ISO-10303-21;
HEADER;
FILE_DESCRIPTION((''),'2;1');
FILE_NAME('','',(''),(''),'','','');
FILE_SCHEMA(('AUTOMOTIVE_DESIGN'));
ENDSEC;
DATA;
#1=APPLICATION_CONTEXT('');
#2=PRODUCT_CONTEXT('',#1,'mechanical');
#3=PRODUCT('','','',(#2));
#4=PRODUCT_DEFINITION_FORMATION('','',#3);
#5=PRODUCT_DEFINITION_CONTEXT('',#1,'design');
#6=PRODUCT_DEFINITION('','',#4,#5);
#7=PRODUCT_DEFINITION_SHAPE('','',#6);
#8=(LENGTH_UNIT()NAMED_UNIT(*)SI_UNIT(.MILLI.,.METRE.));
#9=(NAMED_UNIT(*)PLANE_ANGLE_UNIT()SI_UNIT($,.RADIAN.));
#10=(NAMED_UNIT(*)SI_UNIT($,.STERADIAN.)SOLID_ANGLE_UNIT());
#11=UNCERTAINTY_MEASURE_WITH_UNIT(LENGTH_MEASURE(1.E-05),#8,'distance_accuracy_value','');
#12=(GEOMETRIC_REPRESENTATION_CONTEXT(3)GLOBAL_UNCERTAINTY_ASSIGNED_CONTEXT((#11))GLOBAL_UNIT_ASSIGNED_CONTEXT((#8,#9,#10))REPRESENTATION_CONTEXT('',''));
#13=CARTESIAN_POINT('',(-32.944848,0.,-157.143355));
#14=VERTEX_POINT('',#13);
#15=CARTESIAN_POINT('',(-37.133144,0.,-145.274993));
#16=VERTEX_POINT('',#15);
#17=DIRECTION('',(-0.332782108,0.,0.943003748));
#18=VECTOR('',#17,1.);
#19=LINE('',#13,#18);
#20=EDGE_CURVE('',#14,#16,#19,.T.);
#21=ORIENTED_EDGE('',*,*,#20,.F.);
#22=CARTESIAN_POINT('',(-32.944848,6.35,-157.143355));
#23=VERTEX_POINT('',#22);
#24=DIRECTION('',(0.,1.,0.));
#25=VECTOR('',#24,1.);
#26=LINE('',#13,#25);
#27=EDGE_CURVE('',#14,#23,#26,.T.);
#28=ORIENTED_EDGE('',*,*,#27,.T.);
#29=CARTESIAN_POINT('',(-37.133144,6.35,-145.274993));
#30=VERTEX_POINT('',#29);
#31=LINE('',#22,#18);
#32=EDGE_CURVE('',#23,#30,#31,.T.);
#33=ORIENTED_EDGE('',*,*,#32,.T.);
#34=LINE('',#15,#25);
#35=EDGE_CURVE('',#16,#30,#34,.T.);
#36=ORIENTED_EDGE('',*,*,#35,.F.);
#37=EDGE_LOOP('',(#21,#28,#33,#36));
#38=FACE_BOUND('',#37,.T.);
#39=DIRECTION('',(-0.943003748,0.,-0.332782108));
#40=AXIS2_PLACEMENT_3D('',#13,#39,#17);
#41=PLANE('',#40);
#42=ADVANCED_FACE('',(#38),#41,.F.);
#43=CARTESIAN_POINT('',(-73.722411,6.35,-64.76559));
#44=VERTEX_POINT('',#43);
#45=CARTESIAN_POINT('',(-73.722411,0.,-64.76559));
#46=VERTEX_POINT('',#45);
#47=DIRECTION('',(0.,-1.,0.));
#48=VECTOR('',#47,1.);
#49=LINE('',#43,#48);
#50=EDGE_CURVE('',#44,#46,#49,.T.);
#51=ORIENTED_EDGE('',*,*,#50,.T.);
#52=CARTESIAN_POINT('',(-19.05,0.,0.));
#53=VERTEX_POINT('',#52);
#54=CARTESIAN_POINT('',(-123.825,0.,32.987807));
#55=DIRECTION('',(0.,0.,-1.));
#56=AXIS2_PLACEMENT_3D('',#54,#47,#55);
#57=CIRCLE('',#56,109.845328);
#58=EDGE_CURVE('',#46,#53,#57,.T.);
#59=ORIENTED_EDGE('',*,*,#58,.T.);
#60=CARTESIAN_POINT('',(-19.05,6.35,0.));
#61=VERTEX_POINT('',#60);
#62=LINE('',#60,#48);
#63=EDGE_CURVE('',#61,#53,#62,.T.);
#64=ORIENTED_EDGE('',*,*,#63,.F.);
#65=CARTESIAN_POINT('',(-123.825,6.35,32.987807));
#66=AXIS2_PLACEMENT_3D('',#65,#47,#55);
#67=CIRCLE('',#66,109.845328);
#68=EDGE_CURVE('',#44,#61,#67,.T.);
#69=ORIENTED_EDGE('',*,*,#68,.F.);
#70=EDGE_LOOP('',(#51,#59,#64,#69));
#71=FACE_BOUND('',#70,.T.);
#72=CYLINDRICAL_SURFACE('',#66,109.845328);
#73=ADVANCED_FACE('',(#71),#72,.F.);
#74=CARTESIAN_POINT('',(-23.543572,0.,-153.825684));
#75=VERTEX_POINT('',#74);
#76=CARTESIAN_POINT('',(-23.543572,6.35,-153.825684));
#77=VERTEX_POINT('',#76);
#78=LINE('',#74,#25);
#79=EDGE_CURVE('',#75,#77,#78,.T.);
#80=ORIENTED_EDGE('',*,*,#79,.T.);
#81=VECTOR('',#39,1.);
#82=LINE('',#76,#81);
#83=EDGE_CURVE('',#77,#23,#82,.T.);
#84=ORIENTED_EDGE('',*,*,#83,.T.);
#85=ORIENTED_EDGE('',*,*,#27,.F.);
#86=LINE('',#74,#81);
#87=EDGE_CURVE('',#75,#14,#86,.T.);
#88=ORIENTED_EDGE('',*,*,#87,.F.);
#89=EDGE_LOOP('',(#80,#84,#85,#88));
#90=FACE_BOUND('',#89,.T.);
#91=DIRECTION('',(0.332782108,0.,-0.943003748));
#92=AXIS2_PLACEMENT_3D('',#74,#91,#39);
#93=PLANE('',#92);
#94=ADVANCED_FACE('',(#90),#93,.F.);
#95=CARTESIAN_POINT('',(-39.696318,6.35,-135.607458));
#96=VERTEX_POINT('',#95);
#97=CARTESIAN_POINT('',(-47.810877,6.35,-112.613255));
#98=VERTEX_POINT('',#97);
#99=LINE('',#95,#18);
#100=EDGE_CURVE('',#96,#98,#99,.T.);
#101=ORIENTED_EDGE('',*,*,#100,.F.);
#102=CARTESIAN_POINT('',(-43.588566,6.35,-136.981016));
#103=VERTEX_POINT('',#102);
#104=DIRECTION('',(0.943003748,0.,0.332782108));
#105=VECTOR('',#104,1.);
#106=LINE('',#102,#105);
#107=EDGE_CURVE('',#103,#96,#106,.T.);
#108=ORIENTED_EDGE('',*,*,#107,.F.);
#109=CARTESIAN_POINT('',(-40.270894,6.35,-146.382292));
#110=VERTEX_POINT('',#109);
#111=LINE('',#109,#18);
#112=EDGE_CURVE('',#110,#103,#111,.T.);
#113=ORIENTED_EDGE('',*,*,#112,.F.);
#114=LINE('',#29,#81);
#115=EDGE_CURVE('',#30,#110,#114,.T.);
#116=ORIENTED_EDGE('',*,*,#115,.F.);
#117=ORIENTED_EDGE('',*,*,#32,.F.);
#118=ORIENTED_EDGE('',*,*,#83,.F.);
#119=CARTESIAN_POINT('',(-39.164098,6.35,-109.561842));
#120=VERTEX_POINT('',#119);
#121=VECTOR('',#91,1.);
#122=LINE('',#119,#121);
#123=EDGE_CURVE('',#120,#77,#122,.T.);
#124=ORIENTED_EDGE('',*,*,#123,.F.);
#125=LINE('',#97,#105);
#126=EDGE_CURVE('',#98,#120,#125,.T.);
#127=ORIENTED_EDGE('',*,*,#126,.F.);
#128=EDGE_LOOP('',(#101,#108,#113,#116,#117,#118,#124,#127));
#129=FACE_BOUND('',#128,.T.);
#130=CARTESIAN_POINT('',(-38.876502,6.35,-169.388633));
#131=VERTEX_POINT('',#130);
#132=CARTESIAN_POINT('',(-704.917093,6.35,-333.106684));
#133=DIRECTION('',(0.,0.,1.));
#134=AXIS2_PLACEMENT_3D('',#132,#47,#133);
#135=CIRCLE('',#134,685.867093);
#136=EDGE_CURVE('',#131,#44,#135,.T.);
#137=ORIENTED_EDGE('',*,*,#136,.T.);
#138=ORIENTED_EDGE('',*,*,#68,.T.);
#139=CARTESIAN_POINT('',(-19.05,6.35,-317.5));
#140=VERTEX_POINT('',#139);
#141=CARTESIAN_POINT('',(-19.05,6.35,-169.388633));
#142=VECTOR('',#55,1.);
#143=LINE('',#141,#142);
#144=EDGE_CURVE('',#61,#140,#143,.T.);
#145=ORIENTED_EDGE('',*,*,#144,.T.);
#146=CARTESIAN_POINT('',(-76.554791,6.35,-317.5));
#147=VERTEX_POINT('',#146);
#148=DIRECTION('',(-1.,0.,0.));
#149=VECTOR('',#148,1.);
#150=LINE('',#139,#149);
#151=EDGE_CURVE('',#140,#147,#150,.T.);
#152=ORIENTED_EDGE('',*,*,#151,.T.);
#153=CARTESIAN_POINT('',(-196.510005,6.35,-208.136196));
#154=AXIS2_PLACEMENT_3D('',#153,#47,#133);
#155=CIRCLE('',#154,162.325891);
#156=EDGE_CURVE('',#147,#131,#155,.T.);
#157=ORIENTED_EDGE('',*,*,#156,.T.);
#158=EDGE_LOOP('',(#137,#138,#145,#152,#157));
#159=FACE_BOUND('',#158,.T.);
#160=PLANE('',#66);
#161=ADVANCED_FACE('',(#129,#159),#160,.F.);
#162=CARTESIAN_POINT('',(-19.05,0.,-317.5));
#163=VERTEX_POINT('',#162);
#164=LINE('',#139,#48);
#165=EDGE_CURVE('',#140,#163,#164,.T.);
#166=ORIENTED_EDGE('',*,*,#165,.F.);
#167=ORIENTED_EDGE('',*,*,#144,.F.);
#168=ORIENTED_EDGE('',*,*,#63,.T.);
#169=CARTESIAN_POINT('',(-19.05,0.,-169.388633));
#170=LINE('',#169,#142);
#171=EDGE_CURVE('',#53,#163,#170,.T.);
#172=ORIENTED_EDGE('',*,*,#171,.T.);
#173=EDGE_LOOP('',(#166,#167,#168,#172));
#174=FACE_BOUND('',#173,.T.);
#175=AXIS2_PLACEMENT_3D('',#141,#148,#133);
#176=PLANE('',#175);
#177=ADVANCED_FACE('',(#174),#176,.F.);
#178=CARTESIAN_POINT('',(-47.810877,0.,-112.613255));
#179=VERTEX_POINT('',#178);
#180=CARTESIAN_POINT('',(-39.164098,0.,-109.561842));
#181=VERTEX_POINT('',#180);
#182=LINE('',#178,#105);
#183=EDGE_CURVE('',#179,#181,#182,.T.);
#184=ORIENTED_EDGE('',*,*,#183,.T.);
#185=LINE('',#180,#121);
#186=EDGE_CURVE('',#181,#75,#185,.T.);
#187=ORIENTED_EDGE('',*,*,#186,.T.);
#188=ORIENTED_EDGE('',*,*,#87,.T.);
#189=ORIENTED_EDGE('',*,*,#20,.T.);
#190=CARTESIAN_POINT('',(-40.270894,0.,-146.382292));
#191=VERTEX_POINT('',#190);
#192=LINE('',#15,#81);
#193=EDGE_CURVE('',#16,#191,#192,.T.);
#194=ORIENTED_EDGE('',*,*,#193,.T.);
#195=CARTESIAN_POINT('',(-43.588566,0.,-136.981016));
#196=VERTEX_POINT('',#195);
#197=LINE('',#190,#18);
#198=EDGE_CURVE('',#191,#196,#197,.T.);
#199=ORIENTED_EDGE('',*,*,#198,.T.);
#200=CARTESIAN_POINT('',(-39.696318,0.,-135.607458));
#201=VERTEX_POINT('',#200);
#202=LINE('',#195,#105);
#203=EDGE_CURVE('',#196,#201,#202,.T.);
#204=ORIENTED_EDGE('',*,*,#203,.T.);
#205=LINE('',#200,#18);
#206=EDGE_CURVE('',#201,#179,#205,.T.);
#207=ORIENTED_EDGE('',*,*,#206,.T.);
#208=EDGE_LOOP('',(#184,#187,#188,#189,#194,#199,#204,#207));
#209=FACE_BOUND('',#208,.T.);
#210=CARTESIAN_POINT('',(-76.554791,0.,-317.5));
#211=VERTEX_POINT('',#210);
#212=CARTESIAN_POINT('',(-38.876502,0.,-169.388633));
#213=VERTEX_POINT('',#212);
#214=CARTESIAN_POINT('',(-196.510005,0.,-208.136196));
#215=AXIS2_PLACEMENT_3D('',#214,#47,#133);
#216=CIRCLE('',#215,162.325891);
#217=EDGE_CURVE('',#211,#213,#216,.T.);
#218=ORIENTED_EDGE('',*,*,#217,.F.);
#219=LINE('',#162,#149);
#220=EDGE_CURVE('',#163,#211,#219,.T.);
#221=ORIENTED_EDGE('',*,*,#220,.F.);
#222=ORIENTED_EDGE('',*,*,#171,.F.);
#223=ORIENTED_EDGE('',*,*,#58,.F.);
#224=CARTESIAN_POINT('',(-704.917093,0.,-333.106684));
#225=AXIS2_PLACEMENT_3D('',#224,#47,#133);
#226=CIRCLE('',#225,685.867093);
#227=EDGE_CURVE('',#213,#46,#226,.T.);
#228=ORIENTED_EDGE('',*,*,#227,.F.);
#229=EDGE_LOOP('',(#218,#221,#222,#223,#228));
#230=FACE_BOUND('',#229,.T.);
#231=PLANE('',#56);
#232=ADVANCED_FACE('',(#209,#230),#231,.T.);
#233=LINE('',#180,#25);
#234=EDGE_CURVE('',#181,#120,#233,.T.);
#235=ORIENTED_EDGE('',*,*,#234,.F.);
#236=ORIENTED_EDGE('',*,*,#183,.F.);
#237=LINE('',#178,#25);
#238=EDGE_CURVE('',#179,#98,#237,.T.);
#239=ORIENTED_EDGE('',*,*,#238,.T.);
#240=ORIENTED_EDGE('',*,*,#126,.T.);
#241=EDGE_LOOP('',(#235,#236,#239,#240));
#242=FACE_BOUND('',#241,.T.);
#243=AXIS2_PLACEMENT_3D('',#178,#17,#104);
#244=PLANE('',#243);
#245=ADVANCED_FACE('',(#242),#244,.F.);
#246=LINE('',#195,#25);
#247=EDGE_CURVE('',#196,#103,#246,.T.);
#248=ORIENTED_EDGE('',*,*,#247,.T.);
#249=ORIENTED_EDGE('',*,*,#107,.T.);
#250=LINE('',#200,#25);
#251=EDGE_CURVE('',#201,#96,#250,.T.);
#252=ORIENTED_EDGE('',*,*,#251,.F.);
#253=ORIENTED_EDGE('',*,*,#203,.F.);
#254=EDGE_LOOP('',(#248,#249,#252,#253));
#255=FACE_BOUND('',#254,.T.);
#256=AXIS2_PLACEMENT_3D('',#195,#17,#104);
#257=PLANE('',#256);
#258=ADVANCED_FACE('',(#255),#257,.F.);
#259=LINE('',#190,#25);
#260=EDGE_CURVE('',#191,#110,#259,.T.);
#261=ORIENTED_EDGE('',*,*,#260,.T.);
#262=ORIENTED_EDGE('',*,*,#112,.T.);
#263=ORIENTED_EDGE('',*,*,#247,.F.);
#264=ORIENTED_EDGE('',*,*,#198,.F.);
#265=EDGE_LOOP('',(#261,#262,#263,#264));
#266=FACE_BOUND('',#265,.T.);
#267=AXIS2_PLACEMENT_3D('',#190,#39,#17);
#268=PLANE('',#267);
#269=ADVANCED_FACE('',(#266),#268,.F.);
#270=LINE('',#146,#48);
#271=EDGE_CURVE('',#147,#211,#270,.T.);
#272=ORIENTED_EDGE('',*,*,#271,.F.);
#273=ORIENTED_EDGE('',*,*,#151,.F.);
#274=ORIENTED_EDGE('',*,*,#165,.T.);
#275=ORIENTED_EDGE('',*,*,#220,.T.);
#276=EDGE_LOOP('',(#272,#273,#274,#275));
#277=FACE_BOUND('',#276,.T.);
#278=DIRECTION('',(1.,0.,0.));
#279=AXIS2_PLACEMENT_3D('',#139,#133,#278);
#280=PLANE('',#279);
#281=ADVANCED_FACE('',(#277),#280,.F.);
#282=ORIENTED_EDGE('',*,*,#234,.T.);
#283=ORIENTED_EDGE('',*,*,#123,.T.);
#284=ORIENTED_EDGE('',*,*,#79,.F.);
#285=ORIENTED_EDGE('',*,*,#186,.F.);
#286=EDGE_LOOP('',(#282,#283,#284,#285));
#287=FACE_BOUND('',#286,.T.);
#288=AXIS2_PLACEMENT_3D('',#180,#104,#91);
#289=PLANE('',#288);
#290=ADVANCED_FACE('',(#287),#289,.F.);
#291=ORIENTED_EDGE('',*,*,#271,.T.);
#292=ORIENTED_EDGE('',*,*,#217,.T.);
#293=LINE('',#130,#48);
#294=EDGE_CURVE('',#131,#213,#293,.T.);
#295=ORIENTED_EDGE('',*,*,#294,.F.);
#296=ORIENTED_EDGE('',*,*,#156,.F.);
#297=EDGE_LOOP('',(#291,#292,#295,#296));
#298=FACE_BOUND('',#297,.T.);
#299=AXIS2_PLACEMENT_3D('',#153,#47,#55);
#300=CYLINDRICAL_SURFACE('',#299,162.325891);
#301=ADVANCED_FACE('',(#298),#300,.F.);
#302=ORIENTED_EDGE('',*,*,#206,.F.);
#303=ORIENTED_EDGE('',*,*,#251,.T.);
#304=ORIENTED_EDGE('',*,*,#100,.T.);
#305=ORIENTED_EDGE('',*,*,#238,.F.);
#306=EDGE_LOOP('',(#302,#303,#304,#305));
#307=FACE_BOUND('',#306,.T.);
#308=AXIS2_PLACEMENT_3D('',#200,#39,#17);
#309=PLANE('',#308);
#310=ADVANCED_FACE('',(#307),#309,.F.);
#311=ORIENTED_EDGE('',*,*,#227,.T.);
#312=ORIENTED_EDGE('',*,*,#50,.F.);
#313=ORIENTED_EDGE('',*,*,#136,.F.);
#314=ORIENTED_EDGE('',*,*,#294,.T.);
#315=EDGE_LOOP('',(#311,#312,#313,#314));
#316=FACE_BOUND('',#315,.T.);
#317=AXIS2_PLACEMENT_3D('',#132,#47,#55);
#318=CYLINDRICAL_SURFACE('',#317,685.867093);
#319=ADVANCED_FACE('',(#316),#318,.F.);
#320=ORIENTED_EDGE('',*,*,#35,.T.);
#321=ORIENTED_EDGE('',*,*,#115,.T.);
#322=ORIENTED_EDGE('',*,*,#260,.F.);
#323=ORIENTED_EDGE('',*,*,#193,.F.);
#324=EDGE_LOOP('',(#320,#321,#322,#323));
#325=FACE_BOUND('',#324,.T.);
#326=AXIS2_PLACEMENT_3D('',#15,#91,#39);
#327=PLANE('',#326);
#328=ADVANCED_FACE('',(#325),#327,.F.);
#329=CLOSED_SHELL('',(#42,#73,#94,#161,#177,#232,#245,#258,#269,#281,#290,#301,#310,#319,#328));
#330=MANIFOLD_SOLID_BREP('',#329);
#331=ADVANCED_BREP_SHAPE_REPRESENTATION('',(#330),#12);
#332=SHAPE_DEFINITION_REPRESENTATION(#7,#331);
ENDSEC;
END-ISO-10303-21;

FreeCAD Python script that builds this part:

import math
import FreeCAD as App
import Part
import Sketcher

V = App.Vector
Q = App.Units.Quantity


def add_polygon(sketch, points):
    """Adds a closed chain of lines whose ends are joined by coincident constraints."""
    first, n = sketch.GeometryCount, len(points)
    for a, b in zip(points, points[1:] + points[:1]):
        sketch.addGeometry(Part.LineSegment(App.Vector(*a, 0), App.Vector(*b, 0)), False)
    for i in range(n):
        sketch.addConstraint(Sketcher.Constraint("Coincident", first + i, 2, first + (i + 1) % n, 1))

doc = App.newDocument("Part")
body = doc.addObject("PartDesign::Body", "Body")

# Sketch on XZ plane
sketch1 = body.newObject("Sketcher::SketchObject", "Sketch")
sketch1.AttachmentSupport = (doc.getObject("XZ_Plane"), [""])
sketch1.MapMode = "FlatFace"
sketch1.addGeometry(Part.LineSegment(V(0, 0, 0), V(0, -169, 0)), False)
sketch1.addGeometry(Part.LineSegment(V(0, -169, 0), V(-19, -169, 0)), False)
sketch1.addGeometry(Part.LineSegment(V(-19, -169, 0), V(-19, -318, 0)), False)
sketch1.addGeometry(Part.LineSegment(V(-19, -318, 0), V(-77, -318, 0)), False)
sketch1.addGeometry(Part.ArcOfCircle(Part.Circle(V(-197, -208, 0), V(0, 0, 1), 162), math.radians(-42), math.radians(14)), False)
sketch1.addGeometry(Part.ArcOfCircle(Part.Circle(V(-705, -333, 0), V(0, 0, 1), 686), math.radians(13.81), math.radians(23.03)), False)
sketch1.addGeometry(Part.ArcOfCircle(Part.Circle(V(-124, 33, 0), V(0, 0, 1), 110), math.radians(-63), math.radians(-17)), False)
sketch1.addGeometry(Part.LineSegment(V(-19, 0, 0), V(0, 0, 0)), False)
sketch1.addConstraint(Sketcher.Constraint("Coincident", 0, 2, 1, 1))
sketch1.addConstraint(Sketcher.Constraint("Coincident", 1, 2, 2, 1))
sketch1.addConstraint(Sketcher.Constraint("Coincident", 2, 2, 3, 1))
sketch1.addConstraint(Sketcher.Constraint("Coincident", 3, 2, 4, 1))
sketch1.addConstraint(Sketcher.Constraint("Tangent", 4, 2, 5, 1))
sketch1.addConstraint(Sketcher.Constraint("Coincident", 5, 2, 6, 1))
sketch1.addConstraint(Sketcher.Constraint("Coincident", 6, 2, 7, 1))
sketch1.addConstraint(Sketcher.Constraint("Coincident", 7, 2, 0, 1))
sketch1.addConstraint(Sketcher.Constraint("Vertical", 0))
sketch1.addConstraint(Sketcher.Constraint("Horizontal", 1))
sketch1.addConstraint(Sketcher.Constraint("Vertical", 2))
sketch1.addConstraint(Sketcher.Constraint("Horizontal", 3))
sketch1.addConstraint(Sketcher.Constraint("Horizontal", 7))
sketch1.addConstraint(Sketcher.Constraint("Coincident", 7, 2, -1, 1))
sketch1.addConstraint(Sketcher.Constraint("Horizontal", 1, 2, 4, 2))
sketch1.addConstraint(Sketcher.Constraint("Vertical", 2, 2, 6, 2))
sketch1.addConstraint(Sketcher.Constraint("DistanceX", 1, 2, 1, 1, Q("0.75 in")))
sketch1.addConstraint(Sketcher.Constraint("DistanceY", 2, 2, -1, 1, Q("12.5 in")))
sketch1.addConstraint(Sketcher.Constraint("DistanceX", 6, 3, -1, 1, Q("4.875 in")))
sketch1.addConstraint(Sketcher.Constraint("Radius", 4, 162.325891))
sketch1.addConstraint(Sketcher.Constraint("Radius", 5, 685.867093))
sketch1.addConstraint(Sketcher.Constraint("Radius", 6, 109.845328))
sketch1.addConstraint(Sketcher.Constraint("DistanceX", 3, 2, 3, 1, 57.504791))
sketch1.addConstraint(Sketcher.Constraint("DistanceX", 4, 2, -1, 1, 38.876502))
sketch1.addConstraint(Sketcher.Constraint("DistanceY", 0, 2, 0, 1, 169.388633))
pad1 = body.newObject("PartDesign::Pad", "Pad")
pad1.Profile = sketch1
pad1.Length = Q("0.25 in")
pad1.Reversed = True

# Sketch on XZ plane
sketch2 = body.newObject("Sketcher::SketchObject", "Sketch001")
sketch2.AttachmentSupport = (doc.getObject("XZ_Plane"), [""])
sketch2.MapMode = "FlatFace"
sketch2.AttachmentOffset = App.Placement(V(0, 0, -0.25 * 25.4), App.Rotation())
add_polygon(sketch2, [(-19, -169), (-19, 0), (0, 0), (0, -169)])  # lines 0-3
sketch2.addConstraint(Sketcher.Constraint("Vertical", 0))
sketch2.addConstraint(Sketcher.Constraint("Horizontal", 1))
sketch2.addConstraint(Sketcher.Constraint("Vertical", 2))
sketch2.addConstraint(Sketcher.Constraint("Horizontal", 3))
sketch2.addConstraint(Sketcher.Constraint("Coincident", 1, 2, -1, 1))
sketch2.addConstraint(Sketcher.Constraint("DistanceX", 1, 1, 1, 2, Q("0.75 in")))
sketch2.addConstraint(Sketcher.Constraint("DistanceY", 0, 1, 0, 2, 169.388633))
pocket1 = body.newObject("PartDesign::Pocket", "Pocket")
pocket1.Profile = sketch2
pocket1.Type = "ThroughAll"
pocket1.Reversed = True

# Sketch on XZ plane
sketch3 = body.newObject("Sketcher::SketchObject", "Sketch002")
sketch3.AttachmentSupport = (doc.getObject("XZ_Plane"), [""])
sketch3.MapMode = "FlatFace"
sketch3.AttachmentOffset = App.Placement(V(0, 0, -0.25 * 25.4), App.Rotation())
add_polygon(sketch3, [(-39.2, -109.6), (-23.5, -153.8), (-32.9, -157.1), (-37.1, -145.3), (-40.3, -146.4), (-43.6, -137), (-39.7, -135.6), (-47.8, -112.6)])  # lines 0-7
sketch3.addConstraint(Sketcher.Constraint("Perpendicular", 0, 1))
sketch3.addConstraint(Sketcher.Constraint("Perpendicular", 1, 2))
sketch3.addConstraint(Sketcher.Constraint("Perpendicular", 2, 3))
sketch3.addConstraint(Sketcher.Constraint("Perpendicular", 3, 4))
sketch3.addConstraint(Sketcher.Constraint("Perpendicular", 4, 5))
sketch3.addConstraint(Sketcher.Constraint("Perpendicular", 5, 6))
sketch3.addConstraint(Sketcher.Constraint("Perpendicular", 6, 7))
sketch3.addConstraint(Sketcher.Constraint("Equal", 1, 4))
sketch3.addConstraint(Sketcher.Constraint("Distance", 6, Q("0.96 in")))
sketch3.addConstraint(Sketcher.Constraint("Distance", 0, Q("1.848 in")))
sketch3.addConstraint(Sketcher.Constraint("Distance", 3, Q("0.131 in")))
sketch3.addConstraint(Sketcher.Constraint("Distance", 7, Q("0.361 in")))
sketch3.addConstraint(Sketcher.Constraint("Distance", 1, Q("0.3925 in")))
sketch3.addConstraint(Sketcher.Constraint("DistanceX", 7, 2, -1, 1, 39.164098))
sketch3.addConstraint(Sketcher.Constraint("DistanceY", 3, 2, 2, 2, 1.107299))
sketch3.addConstraint(Sketcher.Constraint("DistanceY", 5, 2, -1, 1, 135.607458))
pocket2 = body.newObject("PartDesign::Pocket", "Pocket001")
pocket2.Profile = sketch3
pocket2.Type = "ThroughAll"
pocket2.Reversed = True

doc.recompute()
